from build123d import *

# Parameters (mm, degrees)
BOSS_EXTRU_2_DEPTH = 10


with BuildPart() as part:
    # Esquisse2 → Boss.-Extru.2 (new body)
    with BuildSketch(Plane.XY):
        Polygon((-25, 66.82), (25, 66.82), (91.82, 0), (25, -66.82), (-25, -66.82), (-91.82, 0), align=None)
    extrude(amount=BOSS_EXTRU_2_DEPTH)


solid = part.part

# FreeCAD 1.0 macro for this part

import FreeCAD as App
import Part
import Sketcher

V = App.Vector
Q = App.Units.Quantity

doc = App.newDocument("Part")
body = doc.addObject("PartDesign::Body", "Body")

sketch1 = doc.addObject("Sketcher::SketchObject", "Sketch")
body.addObject(sketch1)
sketch1.AttachmentSupport = (doc.XY_Plane, [""])
sketch1.MapMode = "FlatFace"
sketch1.addGeometry([
    Part.LineSegment(V(25, 66.82, 0), V(-25, 66.82, 0)),
    Part.LineSegment(V(-25, 66.82, 0), V(-91.82, 0, 0)),
    Part.LineSegment(V(-91.82, 0, 0), V(-25, -66.82, 0)),
    Part.LineSegment(V(-25, -66.82, 0), V(25, -66.82, 0)),
    Part.LineSegment(V(25, -66.82, 0), V(91.82, 0, 0)),
    Part.LineSegment(V(91.82, 0, 0), V(25, 66.82, 0)),
], False)
sketch1.addConstraint([
    Sketcher.Constraint("Coincident", 0, 2, 1, 1),
    Sketcher.Constraint("Coincident", 1, 2, 2, 1),
    Sketcher.Constraint("Coincident", 2, 2, 3, 1),
    Sketcher.Constraint("Coincident", 3, 2, 4, 1),
    Sketcher.Constraint("Coincident", 4, 2, 5, 1),
    Sketcher.Constraint("Coincident", 5, 2, 0, 1),
    Sketcher.Constraint("Horizontal", 0),
    Sketcher.Constraint("Horizontal", 3),
    Sketcher.Constraint("Symmetric", 0, 2, 3, 2, -1, 1),
    Sketcher.Constraint("Symmetric", 1, 2, 4, 2, -1, 1),
    Sketcher.Constraint("PointOnObject", 1, 2, -1),
    Sketcher.Constraint("Perpendicular", 1, 2),
    Sketcher.Constraint("Perpendicular", 4, 5),
    Sketcher.Constraint("Vertical", 0, 2, 2, 2),
    Sketcher.Constraint("DistanceX", 0, 2, 0, 1, Q("50 mm")),
    Sketcher.Constraint("DistanceY", -1, 1, 0, 2, Q("66.82 mm")),
])
pad1 = doc.addObject("PartDesign::Pad", "Pad")
body.addObject(pad1)
pad1.Profile = sketch1
pad1.Length = 10

doc.recompute()
